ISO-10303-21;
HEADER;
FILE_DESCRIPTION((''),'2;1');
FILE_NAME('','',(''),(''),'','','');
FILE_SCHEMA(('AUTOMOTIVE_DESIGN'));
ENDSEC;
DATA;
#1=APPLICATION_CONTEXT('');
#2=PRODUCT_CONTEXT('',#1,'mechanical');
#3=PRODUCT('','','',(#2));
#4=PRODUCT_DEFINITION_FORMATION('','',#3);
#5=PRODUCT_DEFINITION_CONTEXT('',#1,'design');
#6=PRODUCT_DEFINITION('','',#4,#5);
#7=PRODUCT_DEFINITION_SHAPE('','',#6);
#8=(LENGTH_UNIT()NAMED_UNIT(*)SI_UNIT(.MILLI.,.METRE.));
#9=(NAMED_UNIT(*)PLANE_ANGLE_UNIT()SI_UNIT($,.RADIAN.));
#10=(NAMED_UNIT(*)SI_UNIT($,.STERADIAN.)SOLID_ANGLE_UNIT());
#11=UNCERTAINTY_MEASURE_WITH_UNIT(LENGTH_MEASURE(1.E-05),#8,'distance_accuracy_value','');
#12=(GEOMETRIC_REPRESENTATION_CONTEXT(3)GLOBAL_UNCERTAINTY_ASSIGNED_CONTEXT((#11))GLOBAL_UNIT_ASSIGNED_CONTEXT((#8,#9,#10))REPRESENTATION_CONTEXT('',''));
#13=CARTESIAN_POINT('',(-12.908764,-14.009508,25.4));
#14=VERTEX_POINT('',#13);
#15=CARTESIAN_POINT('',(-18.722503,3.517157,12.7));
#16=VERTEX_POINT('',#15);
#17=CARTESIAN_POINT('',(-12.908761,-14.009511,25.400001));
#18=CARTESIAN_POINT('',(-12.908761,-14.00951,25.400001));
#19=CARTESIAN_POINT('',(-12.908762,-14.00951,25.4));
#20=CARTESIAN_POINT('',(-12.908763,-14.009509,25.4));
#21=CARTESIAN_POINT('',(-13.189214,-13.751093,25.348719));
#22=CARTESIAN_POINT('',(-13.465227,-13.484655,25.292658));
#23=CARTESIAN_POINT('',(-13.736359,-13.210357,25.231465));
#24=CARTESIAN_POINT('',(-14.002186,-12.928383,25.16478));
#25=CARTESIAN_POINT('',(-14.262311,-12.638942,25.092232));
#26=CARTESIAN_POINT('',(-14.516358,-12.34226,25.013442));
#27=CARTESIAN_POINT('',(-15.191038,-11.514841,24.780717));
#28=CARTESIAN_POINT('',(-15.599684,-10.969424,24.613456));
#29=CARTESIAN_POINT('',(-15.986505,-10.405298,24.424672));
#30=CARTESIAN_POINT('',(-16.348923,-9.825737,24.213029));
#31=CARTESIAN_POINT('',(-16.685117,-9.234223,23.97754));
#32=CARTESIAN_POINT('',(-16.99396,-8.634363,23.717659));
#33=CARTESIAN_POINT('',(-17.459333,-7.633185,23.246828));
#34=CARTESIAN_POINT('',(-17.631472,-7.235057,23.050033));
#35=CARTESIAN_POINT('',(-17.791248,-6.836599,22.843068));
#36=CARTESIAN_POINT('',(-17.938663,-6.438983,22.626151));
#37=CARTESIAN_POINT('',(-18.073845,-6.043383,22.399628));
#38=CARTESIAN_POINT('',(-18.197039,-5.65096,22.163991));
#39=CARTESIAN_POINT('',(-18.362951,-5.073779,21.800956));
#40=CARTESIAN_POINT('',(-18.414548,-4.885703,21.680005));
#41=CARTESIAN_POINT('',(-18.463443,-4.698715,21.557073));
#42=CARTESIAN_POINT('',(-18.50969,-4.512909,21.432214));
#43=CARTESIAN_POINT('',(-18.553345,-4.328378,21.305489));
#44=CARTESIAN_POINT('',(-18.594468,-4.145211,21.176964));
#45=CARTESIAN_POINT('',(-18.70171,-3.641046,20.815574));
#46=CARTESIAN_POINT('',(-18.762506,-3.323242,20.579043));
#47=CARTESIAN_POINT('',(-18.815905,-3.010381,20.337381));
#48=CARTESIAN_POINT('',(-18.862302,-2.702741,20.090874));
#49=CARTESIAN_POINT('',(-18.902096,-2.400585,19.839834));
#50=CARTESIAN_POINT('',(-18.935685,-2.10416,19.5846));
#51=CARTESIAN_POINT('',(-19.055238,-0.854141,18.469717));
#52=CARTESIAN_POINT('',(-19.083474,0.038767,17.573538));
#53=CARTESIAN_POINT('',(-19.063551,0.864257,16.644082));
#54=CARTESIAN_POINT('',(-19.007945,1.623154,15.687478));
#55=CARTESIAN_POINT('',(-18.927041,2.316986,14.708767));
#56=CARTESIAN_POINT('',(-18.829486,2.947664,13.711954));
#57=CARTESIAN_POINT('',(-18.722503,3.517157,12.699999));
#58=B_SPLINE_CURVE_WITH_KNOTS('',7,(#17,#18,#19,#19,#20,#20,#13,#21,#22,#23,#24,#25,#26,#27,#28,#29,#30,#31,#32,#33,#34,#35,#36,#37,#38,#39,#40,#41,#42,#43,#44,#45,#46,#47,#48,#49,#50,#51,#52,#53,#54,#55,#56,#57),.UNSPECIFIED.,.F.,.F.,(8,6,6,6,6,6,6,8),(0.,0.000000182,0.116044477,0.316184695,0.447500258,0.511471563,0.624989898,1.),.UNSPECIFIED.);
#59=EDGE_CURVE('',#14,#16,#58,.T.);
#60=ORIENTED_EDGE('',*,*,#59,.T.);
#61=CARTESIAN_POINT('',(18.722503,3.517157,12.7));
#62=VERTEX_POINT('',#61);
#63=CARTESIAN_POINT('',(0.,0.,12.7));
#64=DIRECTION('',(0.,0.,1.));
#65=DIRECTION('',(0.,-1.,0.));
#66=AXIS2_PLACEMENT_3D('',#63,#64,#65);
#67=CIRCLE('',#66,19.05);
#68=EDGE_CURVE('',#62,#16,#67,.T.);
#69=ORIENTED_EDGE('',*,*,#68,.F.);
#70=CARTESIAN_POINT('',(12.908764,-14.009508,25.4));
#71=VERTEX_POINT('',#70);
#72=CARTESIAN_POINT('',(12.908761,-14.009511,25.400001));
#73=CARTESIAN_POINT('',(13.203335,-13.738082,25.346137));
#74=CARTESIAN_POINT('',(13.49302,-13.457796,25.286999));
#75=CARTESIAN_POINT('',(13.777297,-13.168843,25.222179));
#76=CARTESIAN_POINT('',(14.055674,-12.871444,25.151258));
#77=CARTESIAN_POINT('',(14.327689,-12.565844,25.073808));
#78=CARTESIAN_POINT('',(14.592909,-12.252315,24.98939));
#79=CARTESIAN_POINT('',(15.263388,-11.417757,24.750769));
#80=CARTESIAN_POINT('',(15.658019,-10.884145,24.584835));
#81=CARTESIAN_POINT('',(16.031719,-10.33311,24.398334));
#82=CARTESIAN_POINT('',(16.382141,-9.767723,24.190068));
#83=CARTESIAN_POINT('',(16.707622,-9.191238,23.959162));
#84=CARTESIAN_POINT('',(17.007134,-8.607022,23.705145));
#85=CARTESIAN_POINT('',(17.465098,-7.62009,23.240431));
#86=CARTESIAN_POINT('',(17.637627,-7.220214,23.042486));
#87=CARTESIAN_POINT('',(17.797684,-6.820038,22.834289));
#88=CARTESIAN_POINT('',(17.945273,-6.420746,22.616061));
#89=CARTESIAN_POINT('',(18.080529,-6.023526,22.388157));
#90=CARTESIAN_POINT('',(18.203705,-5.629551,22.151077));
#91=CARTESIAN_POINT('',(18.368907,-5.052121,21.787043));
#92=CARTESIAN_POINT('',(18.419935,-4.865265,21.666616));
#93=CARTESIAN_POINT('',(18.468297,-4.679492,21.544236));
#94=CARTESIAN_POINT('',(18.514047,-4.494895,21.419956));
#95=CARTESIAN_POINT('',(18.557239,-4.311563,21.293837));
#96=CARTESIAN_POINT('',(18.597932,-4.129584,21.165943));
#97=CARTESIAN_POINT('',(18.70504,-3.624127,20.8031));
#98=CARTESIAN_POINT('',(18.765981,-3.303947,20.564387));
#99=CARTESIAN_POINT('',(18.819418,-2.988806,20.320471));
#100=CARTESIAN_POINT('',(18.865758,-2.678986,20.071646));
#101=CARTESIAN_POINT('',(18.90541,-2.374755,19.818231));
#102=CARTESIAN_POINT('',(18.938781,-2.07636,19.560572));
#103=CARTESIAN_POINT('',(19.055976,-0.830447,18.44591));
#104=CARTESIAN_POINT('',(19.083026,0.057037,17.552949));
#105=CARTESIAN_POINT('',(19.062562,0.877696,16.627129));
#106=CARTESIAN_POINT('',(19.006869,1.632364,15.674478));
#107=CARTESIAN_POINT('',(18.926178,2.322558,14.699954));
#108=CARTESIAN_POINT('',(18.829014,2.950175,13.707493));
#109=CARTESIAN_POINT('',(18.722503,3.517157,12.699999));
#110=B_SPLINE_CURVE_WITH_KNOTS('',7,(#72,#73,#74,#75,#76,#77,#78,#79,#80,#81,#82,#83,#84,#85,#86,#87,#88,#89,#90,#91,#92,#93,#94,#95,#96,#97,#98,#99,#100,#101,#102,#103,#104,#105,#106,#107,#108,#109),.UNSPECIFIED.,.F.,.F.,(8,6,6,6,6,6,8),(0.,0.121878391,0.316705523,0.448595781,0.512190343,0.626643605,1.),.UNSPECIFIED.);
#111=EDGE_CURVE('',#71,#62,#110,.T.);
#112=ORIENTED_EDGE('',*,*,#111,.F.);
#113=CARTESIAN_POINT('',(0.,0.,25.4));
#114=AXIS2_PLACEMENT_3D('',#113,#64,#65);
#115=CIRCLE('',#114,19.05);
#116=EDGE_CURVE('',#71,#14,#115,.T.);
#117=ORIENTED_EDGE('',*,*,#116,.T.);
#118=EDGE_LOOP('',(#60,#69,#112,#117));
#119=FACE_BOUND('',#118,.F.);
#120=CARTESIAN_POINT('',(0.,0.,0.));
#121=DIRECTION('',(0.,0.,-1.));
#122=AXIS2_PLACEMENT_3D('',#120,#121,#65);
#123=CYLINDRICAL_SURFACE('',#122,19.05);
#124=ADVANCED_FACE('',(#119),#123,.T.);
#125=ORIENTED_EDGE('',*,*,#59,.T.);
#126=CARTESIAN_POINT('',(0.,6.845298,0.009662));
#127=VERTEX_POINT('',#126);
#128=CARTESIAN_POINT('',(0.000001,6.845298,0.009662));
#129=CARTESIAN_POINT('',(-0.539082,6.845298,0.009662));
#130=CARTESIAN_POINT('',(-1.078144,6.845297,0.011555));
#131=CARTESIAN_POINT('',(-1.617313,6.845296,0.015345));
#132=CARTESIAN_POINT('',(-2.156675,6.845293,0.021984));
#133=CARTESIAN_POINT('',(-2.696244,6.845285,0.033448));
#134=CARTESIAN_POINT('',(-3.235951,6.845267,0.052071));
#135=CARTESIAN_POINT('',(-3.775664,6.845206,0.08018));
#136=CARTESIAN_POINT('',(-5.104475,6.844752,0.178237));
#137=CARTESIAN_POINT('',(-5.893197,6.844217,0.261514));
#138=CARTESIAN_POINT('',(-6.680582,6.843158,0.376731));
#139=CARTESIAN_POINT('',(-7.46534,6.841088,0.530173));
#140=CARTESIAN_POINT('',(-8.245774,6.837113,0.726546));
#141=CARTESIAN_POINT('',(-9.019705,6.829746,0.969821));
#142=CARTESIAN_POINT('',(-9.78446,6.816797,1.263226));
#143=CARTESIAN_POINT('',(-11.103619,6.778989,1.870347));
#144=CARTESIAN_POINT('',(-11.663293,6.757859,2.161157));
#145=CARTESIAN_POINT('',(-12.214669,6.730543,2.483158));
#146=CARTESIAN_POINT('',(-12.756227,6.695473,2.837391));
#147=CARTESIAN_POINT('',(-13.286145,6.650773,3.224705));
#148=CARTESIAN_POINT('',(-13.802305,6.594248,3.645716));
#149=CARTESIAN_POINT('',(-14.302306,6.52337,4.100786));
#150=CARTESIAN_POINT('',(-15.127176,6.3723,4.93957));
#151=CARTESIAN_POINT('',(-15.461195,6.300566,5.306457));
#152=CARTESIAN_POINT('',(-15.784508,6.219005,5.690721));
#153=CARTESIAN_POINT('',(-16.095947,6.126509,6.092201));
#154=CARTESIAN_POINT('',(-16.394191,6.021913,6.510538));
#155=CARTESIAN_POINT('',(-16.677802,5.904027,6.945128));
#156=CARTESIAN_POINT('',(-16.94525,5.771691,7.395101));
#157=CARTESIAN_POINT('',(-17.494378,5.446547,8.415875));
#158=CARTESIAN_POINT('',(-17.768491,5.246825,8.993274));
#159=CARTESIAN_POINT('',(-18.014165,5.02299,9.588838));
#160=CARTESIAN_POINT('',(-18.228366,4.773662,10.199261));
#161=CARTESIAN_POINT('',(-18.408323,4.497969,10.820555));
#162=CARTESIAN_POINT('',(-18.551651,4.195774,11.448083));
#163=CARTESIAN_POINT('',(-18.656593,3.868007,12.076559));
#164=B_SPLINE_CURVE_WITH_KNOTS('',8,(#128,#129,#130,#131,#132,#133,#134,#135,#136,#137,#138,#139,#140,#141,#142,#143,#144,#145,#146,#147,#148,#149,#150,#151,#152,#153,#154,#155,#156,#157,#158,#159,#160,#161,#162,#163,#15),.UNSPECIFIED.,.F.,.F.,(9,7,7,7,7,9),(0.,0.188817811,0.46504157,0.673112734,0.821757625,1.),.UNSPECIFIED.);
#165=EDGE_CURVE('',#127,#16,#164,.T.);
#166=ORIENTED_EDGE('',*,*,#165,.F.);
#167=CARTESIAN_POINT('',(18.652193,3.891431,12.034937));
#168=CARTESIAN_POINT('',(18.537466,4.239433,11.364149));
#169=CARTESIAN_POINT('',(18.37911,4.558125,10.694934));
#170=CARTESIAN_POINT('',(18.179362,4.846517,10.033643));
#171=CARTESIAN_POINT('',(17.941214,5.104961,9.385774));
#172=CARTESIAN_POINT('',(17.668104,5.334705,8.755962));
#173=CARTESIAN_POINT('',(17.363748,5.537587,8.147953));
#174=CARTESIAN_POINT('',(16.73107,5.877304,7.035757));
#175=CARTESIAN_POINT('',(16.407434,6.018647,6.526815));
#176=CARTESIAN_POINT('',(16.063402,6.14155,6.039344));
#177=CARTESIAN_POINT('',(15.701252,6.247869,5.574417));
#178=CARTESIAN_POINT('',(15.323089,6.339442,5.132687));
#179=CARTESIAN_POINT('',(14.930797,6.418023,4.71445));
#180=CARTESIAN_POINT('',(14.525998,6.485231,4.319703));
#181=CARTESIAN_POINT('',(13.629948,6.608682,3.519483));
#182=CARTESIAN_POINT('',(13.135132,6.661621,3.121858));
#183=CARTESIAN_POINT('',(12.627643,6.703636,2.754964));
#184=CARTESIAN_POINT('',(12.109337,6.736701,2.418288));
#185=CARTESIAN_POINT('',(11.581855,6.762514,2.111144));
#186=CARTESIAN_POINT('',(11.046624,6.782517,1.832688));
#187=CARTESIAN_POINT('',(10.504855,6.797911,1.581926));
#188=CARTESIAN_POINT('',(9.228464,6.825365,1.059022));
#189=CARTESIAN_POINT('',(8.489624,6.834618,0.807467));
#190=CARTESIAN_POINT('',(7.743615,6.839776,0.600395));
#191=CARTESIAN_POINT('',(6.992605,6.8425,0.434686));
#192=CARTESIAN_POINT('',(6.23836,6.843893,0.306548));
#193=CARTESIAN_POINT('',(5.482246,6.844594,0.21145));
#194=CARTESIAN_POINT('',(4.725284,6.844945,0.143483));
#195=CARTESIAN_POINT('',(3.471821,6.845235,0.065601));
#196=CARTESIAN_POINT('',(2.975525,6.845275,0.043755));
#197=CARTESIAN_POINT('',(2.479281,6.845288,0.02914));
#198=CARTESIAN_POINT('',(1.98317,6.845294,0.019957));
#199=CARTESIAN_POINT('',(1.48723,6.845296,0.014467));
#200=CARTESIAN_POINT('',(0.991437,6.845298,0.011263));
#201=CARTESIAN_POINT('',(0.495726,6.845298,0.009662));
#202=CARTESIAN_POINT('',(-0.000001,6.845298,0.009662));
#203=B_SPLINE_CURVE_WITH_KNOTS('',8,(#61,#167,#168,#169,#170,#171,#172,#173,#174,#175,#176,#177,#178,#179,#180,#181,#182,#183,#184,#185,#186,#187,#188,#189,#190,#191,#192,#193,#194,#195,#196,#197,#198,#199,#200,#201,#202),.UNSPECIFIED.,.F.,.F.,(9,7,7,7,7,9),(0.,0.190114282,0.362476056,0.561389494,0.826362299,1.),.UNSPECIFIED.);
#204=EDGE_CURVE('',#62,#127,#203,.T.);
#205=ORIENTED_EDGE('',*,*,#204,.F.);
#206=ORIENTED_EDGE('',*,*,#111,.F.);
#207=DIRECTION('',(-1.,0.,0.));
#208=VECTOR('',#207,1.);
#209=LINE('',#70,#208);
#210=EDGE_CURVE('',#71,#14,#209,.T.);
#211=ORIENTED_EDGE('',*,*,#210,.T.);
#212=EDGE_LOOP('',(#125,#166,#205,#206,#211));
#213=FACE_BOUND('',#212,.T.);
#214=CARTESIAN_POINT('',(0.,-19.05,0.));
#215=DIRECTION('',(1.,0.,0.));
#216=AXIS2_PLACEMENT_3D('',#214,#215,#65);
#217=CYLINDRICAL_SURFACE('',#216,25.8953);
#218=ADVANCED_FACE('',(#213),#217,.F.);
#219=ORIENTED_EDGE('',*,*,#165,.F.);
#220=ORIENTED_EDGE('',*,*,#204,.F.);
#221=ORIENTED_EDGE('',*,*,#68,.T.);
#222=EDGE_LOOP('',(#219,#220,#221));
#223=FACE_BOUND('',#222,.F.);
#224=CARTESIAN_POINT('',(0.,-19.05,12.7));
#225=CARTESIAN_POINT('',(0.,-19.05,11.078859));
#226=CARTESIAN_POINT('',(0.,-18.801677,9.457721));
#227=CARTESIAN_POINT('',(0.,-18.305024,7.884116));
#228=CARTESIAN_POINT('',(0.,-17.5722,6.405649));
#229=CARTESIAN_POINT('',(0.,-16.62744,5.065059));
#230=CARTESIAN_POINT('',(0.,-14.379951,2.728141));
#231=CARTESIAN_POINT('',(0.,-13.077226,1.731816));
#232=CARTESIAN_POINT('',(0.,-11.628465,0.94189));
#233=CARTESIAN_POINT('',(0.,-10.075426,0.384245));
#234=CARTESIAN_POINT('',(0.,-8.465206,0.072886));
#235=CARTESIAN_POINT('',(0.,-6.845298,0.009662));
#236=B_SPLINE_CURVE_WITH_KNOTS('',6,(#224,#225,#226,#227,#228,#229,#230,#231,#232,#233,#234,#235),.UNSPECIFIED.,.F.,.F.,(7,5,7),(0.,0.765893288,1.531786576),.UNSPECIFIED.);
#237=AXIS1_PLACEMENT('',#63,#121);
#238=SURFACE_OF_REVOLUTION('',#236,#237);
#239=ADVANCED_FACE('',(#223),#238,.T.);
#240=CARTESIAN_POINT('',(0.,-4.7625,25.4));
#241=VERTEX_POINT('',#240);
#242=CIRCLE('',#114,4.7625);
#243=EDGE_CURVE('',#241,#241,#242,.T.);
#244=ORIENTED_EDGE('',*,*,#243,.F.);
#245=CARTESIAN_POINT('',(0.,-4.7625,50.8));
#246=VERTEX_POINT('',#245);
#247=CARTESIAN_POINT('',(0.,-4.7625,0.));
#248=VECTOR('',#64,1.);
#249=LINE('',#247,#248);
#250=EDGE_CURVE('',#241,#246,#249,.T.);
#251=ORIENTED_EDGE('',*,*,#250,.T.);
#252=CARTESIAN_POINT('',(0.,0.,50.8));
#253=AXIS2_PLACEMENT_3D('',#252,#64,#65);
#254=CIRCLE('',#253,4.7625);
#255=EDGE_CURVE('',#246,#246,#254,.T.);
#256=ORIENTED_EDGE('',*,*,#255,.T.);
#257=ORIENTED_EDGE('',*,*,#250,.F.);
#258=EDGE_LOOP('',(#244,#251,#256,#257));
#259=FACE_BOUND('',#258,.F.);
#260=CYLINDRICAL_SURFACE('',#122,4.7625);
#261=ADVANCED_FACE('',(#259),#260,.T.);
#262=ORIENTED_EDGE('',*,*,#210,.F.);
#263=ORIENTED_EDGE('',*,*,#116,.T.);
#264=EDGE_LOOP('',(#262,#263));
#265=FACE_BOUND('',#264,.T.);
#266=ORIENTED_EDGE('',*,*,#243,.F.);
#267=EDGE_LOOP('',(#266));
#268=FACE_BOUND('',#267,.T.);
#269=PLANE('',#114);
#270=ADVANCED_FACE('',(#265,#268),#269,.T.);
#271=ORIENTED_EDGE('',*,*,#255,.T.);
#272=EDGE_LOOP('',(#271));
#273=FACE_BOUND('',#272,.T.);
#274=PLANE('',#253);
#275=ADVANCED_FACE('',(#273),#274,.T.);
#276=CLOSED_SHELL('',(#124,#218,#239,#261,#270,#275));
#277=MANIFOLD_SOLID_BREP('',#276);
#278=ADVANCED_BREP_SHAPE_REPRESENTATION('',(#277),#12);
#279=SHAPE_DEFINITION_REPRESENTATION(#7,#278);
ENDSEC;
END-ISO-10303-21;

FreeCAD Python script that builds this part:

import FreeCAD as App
import Part
import Sketcher

V = App.Vector
Q = App.Units.Quantity


def edges_at(feature, points):
    """Names of the edges that pass closest to the given points."""
    edges = feature.Shape.Edges
    near = lambda p: min(range(len(edges)), key=lambda i: edges[i].distToShape(Part.Vertex(*p))[0])
    return sorted({f"Edge{near(p) + 1}" for p in points})

doc = App.newDocument("Part")
params = doc.addObject("Spreadsheet::Sheet", "Params")
for row, (alias, value) in enumerate([
    ("sketch1_diameter", "1.5 in"),
    ("sketch1_diameter2", "0.375 in"),
    ("pad1_length", "1 in"),
    ("sketch2_diameter", "0.375 in"),
    ("pad2_length", "2 in"),
    ("fillet_radius", "0.5 in"),
    ("sketch3_diameter", "2.039 in"),
    ("sketch4_diameter", "2.039 in"),
    ("pocket2_length", "1 in"),
], start=1):
    params.set(f"A{row}", alias)
    params.set(f"B{row}", "=" + value)
    params.setAlias(f"B{row}", alias)

body = doc.addObject("PartDesign::Body", "Body")

sketch1 = body.newObject("Sketcher::SketchObject", "Sketch")
sketch1.AttachmentSupport = (doc.getObject("XY_Plane"), [""])
sketch1.MapMode = "FlatFace"
sketch1.addGeometry(Part.Circle(V(0, 0, 0), V(0, 0, 1), 19.1), False)
sketch1.addGeometry(Part.Circle(V(0, 0, 0), V(0, 0, 1), 4.8), False)
sketch1.addConstraint(Sketcher.Constraint("Coincident", 0, 3, -1, 1))
sketch1.addConstraint(Sketcher.Constraint("Coincident", 1, 3, -1, 1))
sketch1.addConstraint(Sketcher.Constraint("Diameter", 0, Q("1.5 in")))
sketch1.addConstraint(Sketcher.Constraint("Diameter", 1, Q("0.375 in")))
sketch1.setExpression("Constraints[2]", "Params.sketch1_diameter")
sketch1.setExpression("Constraints[3]", "Params.sketch1_diameter2")
pad1 = body.newObject("PartDesign::Pad", "Pad")
pad1.Profile = sketch1
pad1.setExpression("Length", "Params.pad1_length")

sketch2 = body.newObject("Sketcher::SketchObject", "Sketch001")
sketch2.AttachmentSupport = (doc.getObject("XY_Plane"), [""])
sketch2.MapMode = "FlatFace"
sketch2.addGeometry(Part.Circle(V(0, 0, 0), V(0, 0, 1), 4.8), False)
sketch2.addConstraint(Sketcher.Constraint("Coincident", 0, 3, -1, 1))
sketch2.addConstraint(Sketcher.Constraint("Diameter", 0, Q("0.375 in")))
sketch2.setExpression("Constraints[1]", "Params.sketch2_diameter")
pad2 = body.newObject("PartDesign::Pad", "Pad001")
pad2.Profile = sketch2
pad2.setExpression("Length", "Params.pad2_length")
doc.recompute()

fillet = body.newObject("PartDesign::Fillet", "Fillet")
fillet.Base = (pad2, edges_at(pad2, [(-19.05, 0, 0)]))
fillet.setExpression("Radius", "Params.fillet_radius")

sketch3 = body.newObject("Sketcher::SketchObject", "Sketch002")
sketch3.AttachmentSupport = (doc.getObject("XZ_Plane"), [""])
sketch3.MapMode = "FlatFace"
sketch3.addGeometry(Part.Circle(V(19, 0, 0), V(0, 0, 1), 26), False)
sketch3.addConstraint(Sketcher.Constraint("PointOnObject", 0, 3, -1))
sketch3.addConstraint(Sketcher.Constraint("Diameter", 0, Q("2.039 in")))
sketch3.addConstraint(Sketcher.Constraint("DistanceX", -1, 1, 0, 3, Q("0.75 in")))
sketch3.setExpression("Constraints[1]", "Params.sketch3_diameter")
pocket1 = body.newObject("PartDesign::Pocket", "Pocket")
pocket1.Profile = sketch3
pocket1.Type = "ThroughAll"

sketch4 = body.newObject("Sketcher::SketchObject", "Sketch003")
sketch4.AttachmentSupport = (doc.getObject("XZ_Plane"), [""])
sketch4.MapMode = "FlatFace"
sketch4.addGeometry(Part.Circle(V(19, 0, 0), V(0, 0, 1), 26), False)
sketch4.addConstraint(Sketcher.Constraint("PointOnObject", 0, 3, -1))
sketch4.addConstraint(Sketcher.Constraint("Diameter", 0, Q("2.039 in")))
sketch4.addConstraint(Sketcher.Constraint("DistanceX", -1, 1, 0, 3, Q("0.75 in")))
sketch4.setExpression("Constraints[1]", "Params.sketch4_diameter")
pocket2 = body.newObject("PartDesign::Pocket", "Pocket001")
pocket2.Profile = sketch4
pocket2.setExpression("Length", "Params.pocket2_length")
pocket2.Reversed = True
body2 = doc.addObject("PartDesign::Body", "Body001")
doc.recompute()

body.Placement = App.Placement(V(0, 0, 0), App.Rotation(V(0, 0, -1), 90))
boolean = body2.newObject("PartDesign::Boolean", "Boolean")
boolean.Type = "Fuse"
boolean.addObjects([body])

doc.recompute()
